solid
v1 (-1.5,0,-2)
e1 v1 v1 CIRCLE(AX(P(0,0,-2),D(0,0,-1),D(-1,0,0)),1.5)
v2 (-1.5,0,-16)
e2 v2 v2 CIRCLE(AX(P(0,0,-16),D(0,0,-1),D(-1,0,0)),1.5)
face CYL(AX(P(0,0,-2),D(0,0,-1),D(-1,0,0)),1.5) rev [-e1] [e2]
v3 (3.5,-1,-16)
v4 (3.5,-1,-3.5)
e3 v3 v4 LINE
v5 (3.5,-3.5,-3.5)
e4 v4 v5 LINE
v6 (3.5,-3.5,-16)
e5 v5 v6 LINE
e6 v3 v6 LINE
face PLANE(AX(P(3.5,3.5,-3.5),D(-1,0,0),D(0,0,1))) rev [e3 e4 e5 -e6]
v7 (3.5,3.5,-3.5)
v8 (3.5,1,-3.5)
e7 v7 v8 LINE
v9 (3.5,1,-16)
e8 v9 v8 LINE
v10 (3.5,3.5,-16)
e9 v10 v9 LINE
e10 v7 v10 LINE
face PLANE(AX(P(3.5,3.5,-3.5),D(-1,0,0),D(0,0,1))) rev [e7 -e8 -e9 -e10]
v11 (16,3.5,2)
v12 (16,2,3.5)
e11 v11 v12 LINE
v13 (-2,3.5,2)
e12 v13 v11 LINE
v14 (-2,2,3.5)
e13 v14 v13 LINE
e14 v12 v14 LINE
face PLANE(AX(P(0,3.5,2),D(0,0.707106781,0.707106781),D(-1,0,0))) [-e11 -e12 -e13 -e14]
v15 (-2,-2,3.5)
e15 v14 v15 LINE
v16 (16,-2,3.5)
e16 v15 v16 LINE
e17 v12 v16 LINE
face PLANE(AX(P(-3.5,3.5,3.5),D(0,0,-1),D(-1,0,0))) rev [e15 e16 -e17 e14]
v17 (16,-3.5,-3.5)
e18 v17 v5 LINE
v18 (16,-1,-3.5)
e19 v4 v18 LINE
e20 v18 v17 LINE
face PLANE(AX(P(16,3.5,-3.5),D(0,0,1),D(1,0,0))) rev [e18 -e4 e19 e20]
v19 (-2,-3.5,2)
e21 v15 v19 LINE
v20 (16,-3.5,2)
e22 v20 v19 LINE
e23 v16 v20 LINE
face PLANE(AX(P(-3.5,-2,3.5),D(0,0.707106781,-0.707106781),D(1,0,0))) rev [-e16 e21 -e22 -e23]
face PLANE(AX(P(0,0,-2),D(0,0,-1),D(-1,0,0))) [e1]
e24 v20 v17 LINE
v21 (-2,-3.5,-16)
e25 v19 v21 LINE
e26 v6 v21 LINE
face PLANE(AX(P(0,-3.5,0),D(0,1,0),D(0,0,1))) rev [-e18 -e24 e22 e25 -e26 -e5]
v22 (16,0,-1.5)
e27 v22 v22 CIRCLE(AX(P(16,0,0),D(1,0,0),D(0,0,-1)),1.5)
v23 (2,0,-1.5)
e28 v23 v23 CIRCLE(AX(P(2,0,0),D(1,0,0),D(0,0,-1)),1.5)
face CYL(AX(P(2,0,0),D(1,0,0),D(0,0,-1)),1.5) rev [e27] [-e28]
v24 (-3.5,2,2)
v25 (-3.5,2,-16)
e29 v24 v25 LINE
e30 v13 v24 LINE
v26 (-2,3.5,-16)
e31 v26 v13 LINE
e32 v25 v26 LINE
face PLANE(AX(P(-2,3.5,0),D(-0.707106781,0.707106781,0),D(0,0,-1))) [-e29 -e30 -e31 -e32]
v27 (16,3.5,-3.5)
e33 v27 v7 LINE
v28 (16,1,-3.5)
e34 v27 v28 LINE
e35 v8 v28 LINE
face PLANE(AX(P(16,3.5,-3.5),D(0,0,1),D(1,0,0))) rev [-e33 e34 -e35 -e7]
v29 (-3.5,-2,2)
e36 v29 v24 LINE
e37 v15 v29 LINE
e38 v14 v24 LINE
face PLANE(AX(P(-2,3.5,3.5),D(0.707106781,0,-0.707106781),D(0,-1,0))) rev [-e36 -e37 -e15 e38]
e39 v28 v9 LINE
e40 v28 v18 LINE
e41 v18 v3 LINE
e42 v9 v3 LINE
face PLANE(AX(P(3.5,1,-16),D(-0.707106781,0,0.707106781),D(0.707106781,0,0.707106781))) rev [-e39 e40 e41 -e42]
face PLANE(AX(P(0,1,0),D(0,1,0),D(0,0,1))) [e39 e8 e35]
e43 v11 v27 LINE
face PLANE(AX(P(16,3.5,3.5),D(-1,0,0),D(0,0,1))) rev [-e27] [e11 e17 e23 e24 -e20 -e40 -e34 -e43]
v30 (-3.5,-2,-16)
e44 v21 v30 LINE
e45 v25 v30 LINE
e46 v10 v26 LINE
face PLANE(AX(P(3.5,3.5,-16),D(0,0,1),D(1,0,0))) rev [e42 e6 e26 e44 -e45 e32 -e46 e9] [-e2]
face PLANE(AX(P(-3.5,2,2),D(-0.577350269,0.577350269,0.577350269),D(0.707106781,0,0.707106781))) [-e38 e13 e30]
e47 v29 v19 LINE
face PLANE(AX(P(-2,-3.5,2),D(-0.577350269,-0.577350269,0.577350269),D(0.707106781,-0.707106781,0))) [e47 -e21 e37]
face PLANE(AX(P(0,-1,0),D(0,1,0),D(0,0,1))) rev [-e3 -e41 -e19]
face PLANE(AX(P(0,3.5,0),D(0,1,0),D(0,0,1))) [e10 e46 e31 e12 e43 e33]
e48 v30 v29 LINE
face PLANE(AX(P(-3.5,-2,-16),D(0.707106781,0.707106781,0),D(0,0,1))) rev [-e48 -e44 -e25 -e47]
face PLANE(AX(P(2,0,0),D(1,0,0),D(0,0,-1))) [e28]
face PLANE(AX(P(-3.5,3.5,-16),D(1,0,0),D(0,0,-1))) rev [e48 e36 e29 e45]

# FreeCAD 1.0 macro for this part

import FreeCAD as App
import Part
import Sketcher
from FreeCAD import Vector


def edges_at(feature, points):
    """Names of the edges that pass closest to the given points."""
    edges = feature.Shape.Edges
    near = lambda p: min(range(len(edges)), key=lambda i: edges[i].distToShape(Part.Vertex(*p))[0])
    return sorted({f"Edge{near(p) + 1}" for p in points})

doc = App.newDocument("Part")
body = doc.addObject("PartDesign::Body", "Body")

# Sketch on XZ plane
sketch1 = body.newObject("Sketcher::SketchObject", "Sketch")
sketch1.AttachmentSupport = (doc.getObject("XZ_Plane"), [""])
sketch1.MapMode = "FlatFace"
sketch1.addGeometry([
    Part.LineSegment(Vector(-3.5, -16, 0), Vector(-3.5, 3.5, 0)),  # 0
    Part.LineSegment(Vector(-3.5, 3.5, 0), Vector(16, 3.5, 0)),  # 1
    Part.LineSegment(Vector(16, 3.5, 0), Vector(16, -3.5, 0)),  # 2
    Part.LineSegment(Vector(16, -3.5, 0), Vector(3.5, -3.5, 0)),  # 3
    Part.LineSegment(Vector(3.5, -3.5, 0), Vector(3.5, -16, 0)),  # 4
    Part.LineSegment(Vector(3.5, -16, 0), Vector(-3.5, -16, 0)),  # 5
], False)
sketch1.addConstraint([
    Sketcher.Constraint("Coincident", 0, 2, 1, 1),
    Sketcher.Constraint("Coincident", 1, 2, 2, 1),
    Sketcher.Constraint("Coincident", 2, 2, 3, 1),
    Sketcher.Constraint("Coincident", 3, 2, 4, 1),
    Sketcher.Constraint("Coincident", 4, 2, 5, 1),
    Sketcher.Constraint("Coincident", 5, 2, 0, 1),
    Sketcher.Constraint("Vertical", 0),
    Sketcher.Constraint("Horizontal", 1),
    Sketcher.Constraint("Vertical", 2),
    Sketcher.Constraint("Horizontal", 3),
    Sketcher.Constraint("Vertical", 4),
    Sketcher.Constraint("Horizontal", 5),
    Sketcher.Constraint("Symmetric", 0, 2, 3, 2, -1, 1),
    Sketcher.Constraint("Equal", 1, 0),
    Sketcher.Constraint("Equal", 5, 2),
    Sketcher.Constraint("DistanceX", 5, 2, 5, 1, 7.0),
    Sketcher.Constraint("DistanceX", 1, 1, 1, 2, 19.5),
])
pad1 = body.newObject("PartDesign::Pad", "Pad")
pad1.Profile = sketch1
pad1.Length = 7
pad1.Midplane = True

# Sketch on XY plane
sketch2 = body.newObject("Sketcher::SketchObject", "Sketch001")
sketch2.AttachmentSupport = (doc.getObject("XY_Plane"), [""])
sketch2.MapMode = "FlatFace"
sketch2.AttachmentOffset = App.Placement(Vector(0, 0, -16), App.Rotation())
sketch2.addGeometry(Part.Circle(Vector(0, 0, 0), Vector(0, 0, 1), 1.5), False)
sketch2.addConstraint([
    Sketcher.Constraint("Coincident", 0, 3, -1, 1),
    Sketcher.Constraint("Diameter", 0, 3.0),
])
pocket1 = body.newObject("PartDesign::Pocket", "Pocket")
pocket1.Profile = sketch2
pocket1.Length = 14
pocket1.Reversed = True

# Sketch on YZ plane
sketch3 = body.newObject("Sketcher::SketchObject", "Sketch002")
sketch3.AttachmentSupport = (doc.getObject("YZ_Plane"), [""])
sketch3.MapMode = "FlatFace"
sketch3.AttachmentOffset = App.Placement(Vector(0, 0, 16), App.Rotation())
sketch3.addGeometry(Part.Circle(Vector(0, 0, 0), Vector(0, 0, 1), 1.5), False)
sketch3.addConstraint([
    Sketcher.Constraint("Coincident", 0, 3, -1, 1),
    Sketcher.Constraint("Diameter", 0, 3.0),
])
pocket2 = body.newObject("PartDesign::Pocket", "Pocket001")
pocket2.Profile = sketch3
pocket2.Length = 14

# Sketch on XZ plane
sketch4 = body.newObject("Sketcher::SketchObject", "Sketch003")
sketch4.AttachmentSupport = (doc.getObject("XZ_Plane"), [""])
sketch4.MapMode = "FlatFace"
sketch4.addGeometry([
    Part.LineSegment(Vector(16, -3.5, 0), Vector(3.5, -16, 0)),
    Part.LineSegment(Vector(3.5, -16, 0), Vector(3.5, -3.5, 0)),
    Part.LineSegment(Vector(3.5, -3.5, 0), Vector(16, -3.5, 0)),
], False)
sketch4.addConstraint([
    Sketcher.Constraint("Coincident", 0, 2, 1, 1),
    Sketcher.Constraint("Coincident", 1, 2, 2, 1),
    Sketcher.Constraint("Coincident", 2, 2, 0, 1),
    Sketcher.Constraint("Vertical", 1),
    Sketcher.Constraint("Horizontal", 2),
    Sketcher.Constraint("Equal", 2, 1),
    Sketcher.Constraint("DistanceX", 2, 1, 2, 2, 12.5),
    Sketcher.Constraint("DistanceY", 0, 2, -1, 1, 16.0),
    Sketcher.Constraint("DistanceX", -1, 1, 2, 2, 16.0),
])
pad2 = body.newObject("PartDesign::Pad", "Pad001")
pad2.Profile = sketch4
pad2.Length = 2
pad2.Midplane = True
doc.recompute()

chamfer = body.newObject("PartDesign::Chamfer", "Chamfer")
chamfer.Base = (pad2, edges_at(pad2, [
    (-3.5, 0, 3.5),
    (6.25, 3.5, 3.5),
    (6.25, -3.5, 3.5),
    (-3.5, -3.5, -6.25),
    (-3.5, 3.5, -6.25),
]))
chamfer.Size = 1.5

doc.recompute()
